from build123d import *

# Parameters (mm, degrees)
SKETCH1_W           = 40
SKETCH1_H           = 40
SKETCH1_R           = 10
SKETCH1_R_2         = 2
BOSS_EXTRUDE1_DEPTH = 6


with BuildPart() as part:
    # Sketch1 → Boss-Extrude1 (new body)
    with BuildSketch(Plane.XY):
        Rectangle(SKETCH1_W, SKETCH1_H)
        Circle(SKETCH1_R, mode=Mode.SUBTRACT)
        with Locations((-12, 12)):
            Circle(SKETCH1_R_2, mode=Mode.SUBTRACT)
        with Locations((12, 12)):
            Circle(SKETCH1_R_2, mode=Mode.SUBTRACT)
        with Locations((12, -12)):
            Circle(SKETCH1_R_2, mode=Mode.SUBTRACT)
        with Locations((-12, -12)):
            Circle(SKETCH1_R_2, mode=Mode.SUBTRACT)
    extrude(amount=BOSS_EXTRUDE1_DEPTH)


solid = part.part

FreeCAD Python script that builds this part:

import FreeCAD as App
import Part
import Sketcher
from FreeCAD import Vector
Q = App.Units.Quantity


def add_polygon(sketch, points):
    """Adds a closed chain of lines whose ends are joined by coincident constraints."""
    first, n = sketch.GeometryCount, len(points)
    for a, b in zip(points, points[1:] + points[:1]):
        sketch.addGeometry(Part.LineSegment(App.Vector(*a, 0), App.Vector(*b, 0)), False)
    for i in range(n):
        sketch.addConstraint(Sketcher.Constraint("Coincident", first + i, 2, first + (i + 1) % n, 1))

doc = App.newDocument("Part")
body = doc.addObject("PartDesign::Body", "Body")

sketch1 = body.newObject("Sketcher::SketchObject", "Sketch")
sketch1.AttachmentSupport = (doc.getObject("XY_Plane"), [""])
sketch1.MapMode = "FlatFace"
add_polygon(sketch1, [(-20, 20), (-20, -20), (20, -20), (20, 20)])
sketch1.addGeometry(Part.Circle(Vector(-12, -12, 0), Vector(0, 0, 1), 2), False)
sketch1.addGeometry(Part.Circle(Vector(12, -12, 0), Vector(0, 0, 1), 2), False)
sketch1.addGeometry(Part.Circle(Vector(-12, 12, 0), Vector(0, 0, 1), 2), False)
sketch1.addGeometry(Part.Circle(Vector(0, 0, 0), Vector(0, 0, 1), 10), False)
sketch1.addGeometry(Part.Circle(Vector(12, 12, 0), Vector(0, 0, 1), 2), False)
sketch1.addConstraint(Sketcher.Constraint("Vertical", 0))
sketch1.addConstraint(Sketcher.Constraint("Horizontal", 1))
sketch1.addConstraint(Sketcher.Constraint("Vertical", 2))
sketch1.addConstraint(Sketcher.Constraint("Horizontal", 3))
sketch1.addConstraint(Sketcher.Constraint("Coincident", 7, 3, -1, 1))
sketch1.addConstraint(Sketcher.Constraint("Equal", 4, 5))
sketch1.addConstraint(Sketcher.Constraint("Equal", 5, 6))
sketch1.addConstraint(Sketcher.Constraint("Equal", 6, 8))
sketch1.addConstraint(Sketcher.Constraint("Symmetric", 5, 3, 6, 3, -1, 1))
sketch1.addConstraint(Sketcher.Constraint("Symmetric", 4, 3, 8, 3, -1, 1))
sketch1.addConstraint(Sketcher.Constraint("Symmetric", 0, 2, 2, 2, -1, 1))
sketch1.addConstraint(Sketcher.Constraint("Symmetric", 4, 3, 5, 3, -2))
sketch1.addConstraint(Sketcher.Constraint("Equal", 3, 0))
sketch1.addConstraint(Sketcher.Constraint("Diameter", 4, Q("4 mm")))
sketch1.addConstraint(Sketcher.Constraint("Diameter", 7, Q("20 mm")))
sketch1.addConstraint(Sketcher.Constraint("DistanceX", 1, 1, 1, 2, Q("40 mm")))
sketch1.addConstraint(Sketcher.Constraint("DistanceX", 4, 3, -1, 1, Q("12 mm")))
sketch1.addConstraint(Sketcher.Constraint("DistanceY", 4, 3, -1, 1, Q("12 mm")))
pad1 = body.newObject("PartDesign::Pad", "Pad")
pad1.Profile = sketch1
pad1.Length = 6

doc.recompute()
